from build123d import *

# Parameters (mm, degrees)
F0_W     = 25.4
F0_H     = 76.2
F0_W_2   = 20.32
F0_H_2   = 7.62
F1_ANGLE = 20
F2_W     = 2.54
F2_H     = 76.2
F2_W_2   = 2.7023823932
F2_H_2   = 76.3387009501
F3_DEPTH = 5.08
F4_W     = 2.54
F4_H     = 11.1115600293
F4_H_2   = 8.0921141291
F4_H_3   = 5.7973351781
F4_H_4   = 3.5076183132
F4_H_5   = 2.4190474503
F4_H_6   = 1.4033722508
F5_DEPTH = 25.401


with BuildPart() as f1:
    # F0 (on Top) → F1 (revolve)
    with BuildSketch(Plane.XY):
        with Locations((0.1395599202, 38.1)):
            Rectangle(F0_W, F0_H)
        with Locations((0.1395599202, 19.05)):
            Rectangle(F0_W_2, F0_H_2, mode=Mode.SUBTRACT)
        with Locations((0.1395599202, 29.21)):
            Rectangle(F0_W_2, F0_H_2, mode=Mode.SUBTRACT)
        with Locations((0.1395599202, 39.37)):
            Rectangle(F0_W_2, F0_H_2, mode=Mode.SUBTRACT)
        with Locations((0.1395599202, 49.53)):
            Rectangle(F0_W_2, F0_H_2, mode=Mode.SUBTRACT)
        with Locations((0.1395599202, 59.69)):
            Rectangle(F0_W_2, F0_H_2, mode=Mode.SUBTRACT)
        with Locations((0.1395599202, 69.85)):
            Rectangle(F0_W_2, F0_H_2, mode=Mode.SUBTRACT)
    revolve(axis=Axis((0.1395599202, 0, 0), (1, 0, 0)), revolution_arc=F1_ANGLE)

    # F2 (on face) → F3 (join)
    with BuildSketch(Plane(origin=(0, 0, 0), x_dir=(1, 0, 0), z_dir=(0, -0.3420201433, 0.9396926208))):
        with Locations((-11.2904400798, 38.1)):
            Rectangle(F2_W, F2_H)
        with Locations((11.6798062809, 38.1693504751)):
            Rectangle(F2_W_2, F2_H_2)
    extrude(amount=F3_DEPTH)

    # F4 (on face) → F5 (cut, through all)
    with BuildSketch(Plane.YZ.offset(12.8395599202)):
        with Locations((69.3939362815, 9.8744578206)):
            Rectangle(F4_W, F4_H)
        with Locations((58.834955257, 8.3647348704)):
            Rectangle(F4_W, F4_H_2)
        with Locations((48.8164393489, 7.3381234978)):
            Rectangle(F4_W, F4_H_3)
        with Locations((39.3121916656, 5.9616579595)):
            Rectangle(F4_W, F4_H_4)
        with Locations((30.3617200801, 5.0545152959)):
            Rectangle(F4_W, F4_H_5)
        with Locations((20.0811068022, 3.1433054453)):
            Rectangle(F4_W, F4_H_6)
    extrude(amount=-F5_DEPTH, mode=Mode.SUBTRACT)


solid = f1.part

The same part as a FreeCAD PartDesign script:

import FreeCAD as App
import Part
import Sketcher

V = App.Vector
Q = App.Units.Quantity


def add_polygon(sketch, points):
    """Adds a closed chain of lines whose ends are joined by coincident constraints."""
    first, n = sketch.GeometryCount, len(points)
    for a, b in zip(points, points[1:] + points[:1]):
        sketch.addGeometry(Part.LineSegment(App.Vector(*a, 0), App.Vector(*b, 0)), False)
    for i in range(n):
        sketch.addConstraint(Sketcher.Constraint("Coincident", first + i, 2, first + (i + 1) % n, 1))

doc = App.newDocument("Part")
body = doc.addObject("PartDesign::Body", "Body")

sketch1 = body.newObject("Sketcher::SketchObject", "Sketch")
sketch1.AttachmentSupport = (doc.getObject("XY_Plane"), [""])
sketch1.MapMode = "FlatFace"
add_polygon(sketch1, [(-13, 76), (-13, 0), (13, 0), (13, 76)])
add_polygon(sketch1, [(10, 15), (-10, 15), (-10, 23), (10, 23)])
add_polygon(sketch1, [(10, 25), (-10, 25), (-10, 33), (10, 33)])
add_polygon(sketch1, [(10, 36), (-10, 36), (-10, 43), (10, 43)])
add_polygon(sketch1, [(10, 46), (-10, 46), (-10, 53), (10, 53)])
add_polygon(sketch1, [(10, 56), (-10, 56), (-10, 64), (10, 64)])
add_polygon(sketch1, [(10, 66), (-10, 66), (-10, 74), (10, 74)])
sketch1.addConstraint([
    Sketcher.Constraint("Vertical", 0),
    Sketcher.Constraint("Horizontal", 1),
    Sketcher.Constraint("Vertical", 2),
    Sketcher.Constraint("Horizontal", 3),
    Sketcher.Constraint("Horizontal", 4),
    Sketcher.Constraint("Vertical", 5),
    Sketcher.Constraint("Horizontal", 6),
    Sketcher.Constraint("Vertical", 7),
    Sketcher.Constraint("Horizontal", 8),
    Sketcher.Constraint("Vertical", 9),
    Sketcher.Constraint("Horizontal", 10),
    Sketcher.Constraint("Vertical", 11),
    Sketcher.Constraint("Horizontal", 12),
    Sketcher.Constraint("Vertical", 13),
    Sketcher.Constraint("Horizontal", 14),
    Sketcher.Constraint("Vertical", 15),
    Sketcher.Constraint("Horizontal", 16),
    Sketcher.Constraint("Vertical", 17),
    Sketcher.Constraint("Horizontal", 18),
    Sketcher.Constraint("Vertical", 19),
    Sketcher.Constraint("Horizontal", 20),
    Sketcher.Constraint("Vertical", 21),
    Sketcher.Constraint("Horizontal", 22),
    Sketcher.Constraint("Vertical", 23),
    Sketcher.Constraint("Horizontal", 24),
    Sketcher.Constraint("Vertical", 25),
    Sketcher.Constraint("Horizontal", 26),
    Sketcher.Constraint("Vertical", 27),
    Sketcher.Constraint("PointOnObject", 0, 2, -1),
    Sketcher.Constraint("Vertical", 5, 2, 8, 2),
    Sketcher.Constraint("Vertical", 7, 2, 10, 2),
    Sketcher.Constraint("Vertical", 9, 2, 12, 2),
    Sketcher.Constraint("Vertical", 11, 2, 14, 2),
    Sketcher.Constraint("Vertical", 13, 2, 16, 2),
    Sketcher.Constraint("Vertical", 15, 2, 18, 2),
    Sketcher.Constraint("Vertical", 17, 2, 20, 2),
    Sketcher.Constraint("Vertical", 19, 2, 22, 2),
    Sketcher.Constraint("Vertical", 21, 2, 24, 2),
    Sketcher.Constraint("Vertical", 23, 2, 26, 2),
    Sketcher.Constraint("Equal", 7, 9),
    Sketcher.Constraint("Equal", 11, 13),
    Sketcher.Constraint("Equal", 15, 17),
    Sketcher.Constraint("Equal", 19, 21),
    Sketcher.Constraint("Equal", 23, 25),
    Sketcher.Constraint("DistanceX", 1, 1, 1, 2, Q("1 in")),
    Sketcher.Constraint("DistanceY", 0, 2, 0, 1, Q("3 in")),
    Sketcher.Constraint("DistanceX", 4, 2, 4, 1, Q("0.8 in")),
    Sketcher.Constraint("DistanceY", 5, 1, 5, 2, Q("0.3 in")),
    Sketcher.Constraint("DistanceY", -1, 1, 8, 2, Q("1 in")),
    Sketcher.Constraint("DistanceY", -1, 1, 4, 2, Q("0.6 in")),
    Sketcher.Constraint("DistanceY", -1, 1, 12, 2, Q("1.4 in")),
    Sketcher.Constraint("DistanceY", -1, 1, 16, 2, Q("1.8 in")),
    Sketcher.Constraint("DistanceY", -1, 1, 20, 2, Q("2.2 in")),
    Sketcher.Constraint("DistanceY", -1, 1, 24, 2, Q("2.6 in")),
    Sketcher.Constraint("DistanceX", 0, 2, 4, 2, Q("0.1 in")),
    Sketcher.Constraint("DistanceX", 0, 2, -1, 1, 12.56044),
])
revolution = body.newObject("PartDesign::Revolution", "Revolution")
revolution.Profile = sketch1
revolution.ReferenceAxis = (sketch1, ["H_Axis"])
revolution.Angle = 20

sketch2 = body.newObject("Sketcher::SketchObject", "Sketch001")
sketch2.Placement = App.Placement(V(0, 0, 0), App.Rotation(V(1, 0, 0), V(0, 0.939692621, 0.342020143), V(0, -0.342020143, 0.939692621), "ZXY"))
add_polygon(sketch2, [(-12.6, 76.2), (-12.6, 0), (-10, 0), (-10, 76.2)])
add_polygon(sketch2, [(10.3, 76.3), (10.3, 0), (13, 0), (13, 76.3)])
sketch2.addConstraint([
    Sketcher.Constraint("Vertical", 0),
    Sketcher.Constraint("Horizontal", 1),
    Sketcher.Constraint("Vertical", 2),
    Sketcher.Constraint("Horizontal", 3),
    Sketcher.Constraint("Vertical", 4),
    Sketcher.Constraint("Horizontal", 5),
    Sketcher.Constraint("Vertical", 6),
    Sketcher.Constraint("Horizontal", 7),
    Sketcher.Constraint("PointOnObject", 0, 2, -1),
    Sketcher.Constraint("PointOnObject", 4, 2, -1),
    Sketcher.Constraint("DistanceY", 0, 2, 0, 1, Q("3 in")),
    Sketcher.Constraint("DistanceX", 1, 1, 1, 2, Q("0.1 in")),
    Sketcher.Constraint("DistanceY", 4, 2, 4, 1, 76.338701),
    Sketcher.Constraint("DistanceX", 5, 1, 5, 2, 2.702382),
    Sketcher.Constraint("DistanceX", 0, 2, -1, 1, 12.56044),
    Sketcher.Constraint("DistanceX", -1, 1, 4, 2, 10.328615),
])
pad1 = body.newObject("PartDesign::Pad", "Pad")
pad1.Profile = sketch2
pad1.Length = Q("0.2 in")

sketch3 = body.newObject("Sketcher::SketchObject", "Sketch002")
sketch3.AttachmentSupport = (doc.getObject("YZ_Plane"), [""])
sketch3.MapMode = "FlatFace"
sketch3.AttachmentOffset = App.Placement(V(0, 0, 12.83956), App.Rotation())
add_polygon(sketch3, [(68.1, 15.4), (68.1, 4.3), (70.7, 4.3), (70.7, 15.4)])
add_polygon(sketch3, [(57.6, 12.4), (57.6, 4.3), (60.1, 4.3), (60.1, 12.4)])
add_polygon(sketch3, [(47.5, 10.2), (47.5, 4.4), (50.1, 4.4), (50.1, 10.2)])
add_polygon(sketch3, [(38, 7.7), (38, 4.2), (40.6, 4.2), (40.6, 7.7)])
add_polygon(sketch3, [(29.1, 6.3), (29.1, 3.8), (31.6, 3.8), (31.6, 6.3)])
add_polygon(sketch3, [(18.8, 3.8), (18.8, 2.4), (21.4, 2.4), (21.4, 3.8)])
sketch3.addConstraint([
    Sketcher.Constraint("Vertical", 0),
    Sketcher.Constraint("Horizontal", 1),
    Sketcher.Constraint("Vertical", 2),
    Sketcher.Constraint("Horizontal", 3),
    Sketcher.Constraint("Vertical", 4),
    Sketcher.Constraint("Horizontal", 5),
    Sketcher.Constraint("Vertical", 6),
    Sketcher.Constraint("Horizontal", 7),
    Sketcher.Constraint("Vertical", 8),
    Sketcher.Constraint("Horizontal", 9),
    Sketcher.Constraint("Vertical", 10),
    Sketcher.Constraint("Horizontal", 11),
    Sketcher.Constraint("Vertical", 12),
    Sketcher.Constraint("Horizontal", 13),
    Sketcher.Constraint("Vertical", 14),
    Sketcher.Constraint("Horizontal", 15),
    Sketcher.Constraint("Vertical", 16),
    Sketcher.Constraint("Horizontal", 17),
    Sketcher.Constraint("Vertical", 18),
    Sketcher.Constraint("Horizontal", 19),
    Sketcher.Constraint("Vertical", 20),
    Sketcher.Constraint("Horizontal", 21),
    Sketcher.Constraint("Vertical", 22),
    Sketcher.Constraint("Horizontal", 23),
    Sketcher.Constraint("Horizontal", 1, 2, 4, 2),
    Sketcher.Constraint("Horizontal", 17, 2, 22, 2),
    Sketcher.Constraint("Equal", 3, 5),
    Sketcher.Constraint("Equal", 7, 9),
    Sketcher.Constraint("Equal", 11, 13),
    Sketcher.Constraint("Equal", 15, 17),
    Sketcher.Constraint("Equal", 19, 21),
    Sketcher.Constraint("DistanceX", 1, 1, 1, 2, Q("0.1 in")),
    Sketcher.Constraint("DistanceY", 0, 2, 0, 1, 11.11156),
    Sketcher.Constraint("DistanceY", 12, 2, 12, 1, 3.507618),
    Sketcher.Constraint("DistanceY", 10, 2, 7, 2, 2.174001),
    Sketcher.Constraint("DistanceY", 4, 2, 4, 1, 8.092114),
    Sketcher.Constraint("DistanceY", 8, 2, 8, 1, 5.797335),
    Sketcher.Constraint("DistanceY", 16, 2, 16, 1, 2.419047),
    Sketcher.Constraint("DistanceY", 20, 2, 20, 1, 1.403372),
    Sketcher.Constraint("DistanceY", -1, 1, 6, 2, 12.410792),
    Sketcher.Constraint("DistanceX", -1, 1, 8, 2, 47.546439),
    Sketcher.Constraint("DistanceX", -1, 1, 12, 2, 38.042192),
    Sketcher.Constraint("DistanceY", -1, 1, 12, 2, 4.207849),
    Sketcher.Constraint("DistanceX", -1, 1, 16, 2, 29.09172),
    Sketcher.Constraint("DistanceY", -1, 1, 16, 2, 3.844992),
    Sketcher.Constraint("DistanceX", 4, 2, 0, 2, 10.558981),
    Sketcher.Constraint("DistanceX", -1, 1, 0, 2, 68.123936),
    Sketcher.Constraint("DistanceX", -1, 1, 20, 2, 18.811107),
])
pocket1 = body.newObject("PartDesign::Pocket", "Pocket")
pocket1.Profile = sketch3
pocket1.Type = "ThroughAll"

doc.recompute()
